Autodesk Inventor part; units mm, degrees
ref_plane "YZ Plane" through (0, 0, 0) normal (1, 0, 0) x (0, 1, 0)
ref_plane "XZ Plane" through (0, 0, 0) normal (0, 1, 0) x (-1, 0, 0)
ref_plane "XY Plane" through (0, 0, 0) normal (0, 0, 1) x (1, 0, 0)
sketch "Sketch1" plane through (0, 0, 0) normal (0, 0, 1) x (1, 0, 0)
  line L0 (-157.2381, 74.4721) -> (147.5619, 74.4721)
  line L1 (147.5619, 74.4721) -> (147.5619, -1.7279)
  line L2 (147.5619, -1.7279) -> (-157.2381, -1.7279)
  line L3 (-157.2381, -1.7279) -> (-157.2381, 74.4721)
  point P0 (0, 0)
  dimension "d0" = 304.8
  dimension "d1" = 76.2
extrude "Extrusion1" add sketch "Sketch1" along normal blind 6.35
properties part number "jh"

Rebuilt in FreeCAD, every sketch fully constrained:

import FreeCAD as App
import Part
import Sketcher

V = App.Vector
Q = App.Units.Quantity


def add_polygon(sketch, points):
    """Adds a closed chain of lines whose ends are joined by coincident constraints."""
    first, n = sketch.GeometryCount, len(points)
    for a, b in zip(points, points[1:] + points[:1]):
        sketch.addGeometry(Part.LineSegment(App.Vector(*a, 0), App.Vector(*b, 0)), False)
    for i in range(n):
        sketch.addConstraint(Sketcher.Constraint("Coincident", first + i, 2, first + (i + 1) % n, 1))

doc = App.newDocument("Part")
params = doc.addObject("Spreadsheet::Sheet", "Params")
for row, (alias, value) in enumerate([
    ("sketch1_width", "12 in"),
    ("sketch1_height", "3 in"),
    ("pad1_length", "0.25 in"),
], start=1):
    params.set(f"A{row}", alias)
    params.set(f"B{row}", "=" + value)
    params.setAlias(f"B{row}", alias)

body = doc.addObject("PartDesign::Body", "Body")

sketch1 = body.newObject("Sketcher::SketchObject", "Sketch")
sketch1.AttachmentSupport = (doc.getObject("XY_Plane"), [""])
sketch1.MapMode = "FlatFace"
add_polygon(sketch1, [(148, 74), (-157, 74), (-157, -2), (148, -2)])
sketch1.addConstraint(Sketcher.Constraint("Horizontal", 0))
sketch1.addConstraint(Sketcher.Constraint("Vertical", 1))
sketch1.addConstraint(Sketcher.Constraint("Horizontal", 2))
sketch1.addConstraint(Sketcher.Constraint("Vertical", 3))
sketch1.addConstraint(Sketcher.Constraint("DistanceX", 0, 2, 0, 1, Q("12 in")))
sketch1.addConstraint(Sketcher.Constraint("DistanceY", 1, 2, 1, 1, Q("3 in")))
sketch1.addConstraint(Sketcher.Constraint("DistanceX", 0, 2, -1, 1, Q("157.238 mm")))
sketch1.addConstraint(Sketcher.Constraint("DistanceY", -1, 1, 0, 2, Q("74.472 mm")))
sketch1.setExpression("Constraints[8]", "Params.sketch1_width")
sketch1.setExpression("Constraints[9]", "Params.sketch1_height")
pad1 = body.newObject("PartDesign::Pad", "Pad")
pad1.Profile = sketch1
pad1.setExpression("Length", "Params.pad1_length")

doc.recompute()
